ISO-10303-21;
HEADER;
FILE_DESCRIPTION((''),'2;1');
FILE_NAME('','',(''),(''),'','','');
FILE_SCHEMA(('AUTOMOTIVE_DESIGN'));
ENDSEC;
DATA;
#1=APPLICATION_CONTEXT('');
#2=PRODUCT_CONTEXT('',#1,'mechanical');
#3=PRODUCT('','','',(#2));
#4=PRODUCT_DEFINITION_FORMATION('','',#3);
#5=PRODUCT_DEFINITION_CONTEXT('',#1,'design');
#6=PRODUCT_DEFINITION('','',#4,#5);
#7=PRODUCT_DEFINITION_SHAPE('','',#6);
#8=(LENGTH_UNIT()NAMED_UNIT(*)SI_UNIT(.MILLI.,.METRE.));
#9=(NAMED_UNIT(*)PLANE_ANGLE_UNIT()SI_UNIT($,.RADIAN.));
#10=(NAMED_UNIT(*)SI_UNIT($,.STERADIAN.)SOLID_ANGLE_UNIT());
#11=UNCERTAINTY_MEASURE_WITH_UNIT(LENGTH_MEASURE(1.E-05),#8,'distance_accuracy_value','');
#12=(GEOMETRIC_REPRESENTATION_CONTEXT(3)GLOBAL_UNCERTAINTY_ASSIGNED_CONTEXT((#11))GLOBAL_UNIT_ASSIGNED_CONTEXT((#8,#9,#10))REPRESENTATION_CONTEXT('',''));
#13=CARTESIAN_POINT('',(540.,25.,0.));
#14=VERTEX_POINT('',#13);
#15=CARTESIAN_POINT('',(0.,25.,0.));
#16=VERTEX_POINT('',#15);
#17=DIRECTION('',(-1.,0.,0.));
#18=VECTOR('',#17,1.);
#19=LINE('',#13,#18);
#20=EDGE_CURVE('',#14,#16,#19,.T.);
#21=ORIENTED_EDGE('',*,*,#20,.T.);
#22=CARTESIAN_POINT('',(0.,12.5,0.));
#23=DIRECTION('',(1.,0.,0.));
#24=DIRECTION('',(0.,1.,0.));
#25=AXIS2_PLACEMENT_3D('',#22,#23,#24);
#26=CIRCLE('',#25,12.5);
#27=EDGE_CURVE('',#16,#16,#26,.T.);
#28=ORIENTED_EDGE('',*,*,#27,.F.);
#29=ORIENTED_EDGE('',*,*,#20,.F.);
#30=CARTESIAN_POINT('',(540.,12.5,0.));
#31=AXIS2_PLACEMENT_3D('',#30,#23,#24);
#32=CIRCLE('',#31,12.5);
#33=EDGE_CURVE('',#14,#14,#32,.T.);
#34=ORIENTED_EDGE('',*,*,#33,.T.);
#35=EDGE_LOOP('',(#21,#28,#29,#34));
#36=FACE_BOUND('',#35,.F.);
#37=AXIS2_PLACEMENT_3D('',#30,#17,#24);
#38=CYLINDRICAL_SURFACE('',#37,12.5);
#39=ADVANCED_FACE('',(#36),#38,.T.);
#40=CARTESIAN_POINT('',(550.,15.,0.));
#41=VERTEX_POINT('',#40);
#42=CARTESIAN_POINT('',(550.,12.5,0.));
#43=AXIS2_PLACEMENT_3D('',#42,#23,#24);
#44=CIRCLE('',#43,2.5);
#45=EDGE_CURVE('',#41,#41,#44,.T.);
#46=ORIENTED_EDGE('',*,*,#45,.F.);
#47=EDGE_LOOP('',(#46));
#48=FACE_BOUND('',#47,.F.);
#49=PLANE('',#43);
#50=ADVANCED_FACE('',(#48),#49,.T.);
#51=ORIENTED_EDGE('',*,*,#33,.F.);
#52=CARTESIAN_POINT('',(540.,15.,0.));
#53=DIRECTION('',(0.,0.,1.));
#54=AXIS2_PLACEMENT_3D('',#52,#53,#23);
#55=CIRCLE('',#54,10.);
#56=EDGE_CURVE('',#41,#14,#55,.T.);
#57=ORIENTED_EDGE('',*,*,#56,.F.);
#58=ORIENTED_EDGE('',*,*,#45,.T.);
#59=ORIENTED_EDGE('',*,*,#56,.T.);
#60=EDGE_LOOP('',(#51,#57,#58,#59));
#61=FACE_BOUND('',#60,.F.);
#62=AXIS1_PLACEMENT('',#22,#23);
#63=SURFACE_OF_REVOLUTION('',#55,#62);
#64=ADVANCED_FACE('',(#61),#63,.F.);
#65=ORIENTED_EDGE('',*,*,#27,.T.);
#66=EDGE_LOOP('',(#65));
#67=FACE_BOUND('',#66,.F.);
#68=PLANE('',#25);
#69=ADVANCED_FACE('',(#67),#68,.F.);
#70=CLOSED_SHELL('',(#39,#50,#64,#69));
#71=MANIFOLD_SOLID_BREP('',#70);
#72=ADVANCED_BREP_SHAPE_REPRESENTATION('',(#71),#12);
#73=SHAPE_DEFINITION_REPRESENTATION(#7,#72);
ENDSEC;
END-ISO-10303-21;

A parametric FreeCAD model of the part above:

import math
import FreeCAD as App
import Part
import Sketcher

V = App.Vector
Q = App.Units.Quantity

doc = App.newDocument("Part")
params = doc.addObject("Spreadsheet::Sheet", "Params")
for row, (alias, value) in enumerate([
    ("sketch1_radius", "10 mm"),
    ("sketch1_width", "550 mm"),
    ("sketch1_height", "12.5 mm"),
    ("revolution_angle", "360 deg"),
], start=1):
    params.set(f"A{row}", alias)
    params.set(f"B{row}", "=" + value)
    params.setAlias(f"B{row}", alias)

body = doc.addObject("PartDesign::Body", "Body")

# Sketch on XY plane
sketch1 = body.newObject("Sketcher::SketchObject", "Sketch")
sketch1.AttachmentSupport = (doc.getObject("XY_Plane"), [""])
sketch1.MapMode = "FlatFace"
sketch1.addGeometry([
    Part.LineSegment(V(0, 25, 0), V(0, 12.5, 0)),  # 0
    Part.LineSegment(V(0, 12.5, 0), V(550, 12.5, 0)),  # 1
    Part.LineSegment(V(550, 12.5, 0), V(550, 15, 0)),  # 2
    Part.ArcOfCircle(Part.Circle(V(540, 15, 0), V(0, 0, 1), 10), math.radians(0), math.radians(90)),  # 3
    Part.LineSegment(V(540, 25, 0), V(0, 25, 0)),  # 4
], False)
sketch1.addGeometry(Part.LineSegment(V(0, 12.5, 0), V(550, 12.5, 0)), True)  # axis
sketch1.addConstraint([
    Sketcher.Constraint("Coincident", 0, 2, 1, 1),
    Sketcher.Constraint("Coincident", 1, 2, 2, 1),
    Sketcher.Constraint("Tangent", 2, 2, 3, 1),
    Sketcher.Constraint("Tangent", 3, 2, 4, 1),
    Sketcher.Constraint("Coincident", 4, 2, 0, 1),
    Sketcher.Constraint("Vertical", 0),
    Sketcher.Constraint("Horizontal", 1),
    Sketcher.Constraint("Vertical", 2),
    Sketcher.Constraint("Horizontal", 4),
    Sketcher.Constraint("Horizontal", 5),
    Sketcher.Constraint("Coincident", 5, 1, 0, 2),
    Sketcher.Constraint("PointOnObject", 0, 2, -2),
    Sketcher.Constraint("Vertical", 2, 2, 5, 2),
    Sketcher.Constraint("Radius", 3, Q("10 mm")),
    Sketcher.Constraint("DistanceX", 1, 1, 1, 2, Q("550 mm")),
    Sketcher.Constraint("DistanceY", -1, 1, 3, 2, Q("25 mm")),
    Sketcher.Constraint("DistanceY", 0, 2, 0, 1, Q("12.5 mm")),
])
sketch1.setExpression("Constraints[13]", "Params.sketch1_radius")
sketch1.setExpression("Constraints[14]", "Params.sketch1_width")
sketch1.setExpression("Constraints[16]", "Params.sketch1_height")
revolution = body.newObject("PartDesign::Revolution", "Revolution")
revolution.Profile = sketch1
revolution.ReferenceAxis = (sketch1, ["Axis0"])
revolution.setExpression("Angle", "Params.revolution_angle")

doc.recompute()
